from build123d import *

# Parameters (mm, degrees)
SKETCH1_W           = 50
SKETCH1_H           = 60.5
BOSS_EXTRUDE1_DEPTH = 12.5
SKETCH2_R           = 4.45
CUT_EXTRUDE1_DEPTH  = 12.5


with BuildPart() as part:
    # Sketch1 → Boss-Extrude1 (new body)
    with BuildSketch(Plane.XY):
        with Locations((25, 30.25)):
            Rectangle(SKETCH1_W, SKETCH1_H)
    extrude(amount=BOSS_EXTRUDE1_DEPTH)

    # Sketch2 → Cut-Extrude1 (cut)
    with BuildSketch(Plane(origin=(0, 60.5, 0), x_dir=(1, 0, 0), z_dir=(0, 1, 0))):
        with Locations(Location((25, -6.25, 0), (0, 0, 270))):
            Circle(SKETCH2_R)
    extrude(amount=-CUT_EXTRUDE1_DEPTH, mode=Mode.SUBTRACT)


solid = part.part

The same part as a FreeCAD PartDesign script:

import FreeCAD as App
import Part
import Sketcher
from FreeCAD import Vector
Q = App.Units.Quantity


def add_polygon(sketch, points):
    """Adds a closed chain of lines whose ends are joined by coincident constraints."""
    first, n = sketch.GeometryCount, len(points)
    for a, b in zip(points, points[1:] + points[:1]):
        sketch.addGeometry(Part.LineSegment(App.Vector(*a, 0), App.Vector(*b, 0)), False)
    for i in range(n):
        sketch.addConstraint(Sketcher.Constraint("Coincident", first + i, 2, first + (i + 1) % n, 1))

doc = App.newDocument("Part")
body = doc.addObject("PartDesign::Body", "Body")

# Sketch on XY plane
sketch1 = doc.addObject("Sketcher::SketchObject", "Sketch")
body.addObject(sketch1)
sketch1.AttachmentSupport = (doc.XY_Plane, [""])
sketch1.MapMode = "FlatFace"
add_polygon(sketch1, [(0, 60.5), (0, 0), (50, 0), (50, 60.5)])  # lines 0-3
sketch1.addConstraint([
    Sketcher.Constraint("Vertical", 0),
    Sketcher.Constraint("Horizontal", 1),
    Sketcher.Constraint("Vertical", 2),
    Sketcher.Constraint("Horizontal", 3),
    Sketcher.Constraint("Coincident", 0, 2, -1, 1),
    Sketcher.Constraint("DistanceX", 1, 1, 1, 2, Q("50 mm")),
    Sketcher.Constraint("DistanceY", 0, 2, 0, 1, Q("60.5 mm")),
])
pad1 = doc.addObject("PartDesign::Pad", "Pad")
body.addObject(pad1)
pad1.Profile = sketch1
pad1.Length = 12.5

# Sketch on XZ plane
sketch2 = doc.addObject("Sketcher::SketchObject", "Sketch001")
body.addObject(sketch2)
sketch2.AttachmentSupport = (doc.XZ_Plane, [""])
sketch2.MapMode = "FlatFace"
sketch2.AttachmentOffset = App.Placement(Vector(0, 0, -60.5), App.Rotation())
sketch2.addGeometry(Part.Circle(Vector(25, 6.25, 0), Vector(0, 0, 1), 4.45), False)
sketch2.addConstraint([
    Sketcher.Constraint("Diameter", 0, Q("8.9 mm")),
    Sketcher.Constraint("DistanceX", -1, 1, 0, 3, Q("25 mm")),
    Sketcher.Constraint("DistanceY", -1, 1, 0, 3, Q("6.25 mm")),
])
pocket1 = doc.addObject("PartDesign::Pocket", "Pocket")
body.addObject(pocket1)
pocket1.Profile = sketch2
pocket1.Length = 12.5
pocket1.Reversed = True

doc.recompute()
